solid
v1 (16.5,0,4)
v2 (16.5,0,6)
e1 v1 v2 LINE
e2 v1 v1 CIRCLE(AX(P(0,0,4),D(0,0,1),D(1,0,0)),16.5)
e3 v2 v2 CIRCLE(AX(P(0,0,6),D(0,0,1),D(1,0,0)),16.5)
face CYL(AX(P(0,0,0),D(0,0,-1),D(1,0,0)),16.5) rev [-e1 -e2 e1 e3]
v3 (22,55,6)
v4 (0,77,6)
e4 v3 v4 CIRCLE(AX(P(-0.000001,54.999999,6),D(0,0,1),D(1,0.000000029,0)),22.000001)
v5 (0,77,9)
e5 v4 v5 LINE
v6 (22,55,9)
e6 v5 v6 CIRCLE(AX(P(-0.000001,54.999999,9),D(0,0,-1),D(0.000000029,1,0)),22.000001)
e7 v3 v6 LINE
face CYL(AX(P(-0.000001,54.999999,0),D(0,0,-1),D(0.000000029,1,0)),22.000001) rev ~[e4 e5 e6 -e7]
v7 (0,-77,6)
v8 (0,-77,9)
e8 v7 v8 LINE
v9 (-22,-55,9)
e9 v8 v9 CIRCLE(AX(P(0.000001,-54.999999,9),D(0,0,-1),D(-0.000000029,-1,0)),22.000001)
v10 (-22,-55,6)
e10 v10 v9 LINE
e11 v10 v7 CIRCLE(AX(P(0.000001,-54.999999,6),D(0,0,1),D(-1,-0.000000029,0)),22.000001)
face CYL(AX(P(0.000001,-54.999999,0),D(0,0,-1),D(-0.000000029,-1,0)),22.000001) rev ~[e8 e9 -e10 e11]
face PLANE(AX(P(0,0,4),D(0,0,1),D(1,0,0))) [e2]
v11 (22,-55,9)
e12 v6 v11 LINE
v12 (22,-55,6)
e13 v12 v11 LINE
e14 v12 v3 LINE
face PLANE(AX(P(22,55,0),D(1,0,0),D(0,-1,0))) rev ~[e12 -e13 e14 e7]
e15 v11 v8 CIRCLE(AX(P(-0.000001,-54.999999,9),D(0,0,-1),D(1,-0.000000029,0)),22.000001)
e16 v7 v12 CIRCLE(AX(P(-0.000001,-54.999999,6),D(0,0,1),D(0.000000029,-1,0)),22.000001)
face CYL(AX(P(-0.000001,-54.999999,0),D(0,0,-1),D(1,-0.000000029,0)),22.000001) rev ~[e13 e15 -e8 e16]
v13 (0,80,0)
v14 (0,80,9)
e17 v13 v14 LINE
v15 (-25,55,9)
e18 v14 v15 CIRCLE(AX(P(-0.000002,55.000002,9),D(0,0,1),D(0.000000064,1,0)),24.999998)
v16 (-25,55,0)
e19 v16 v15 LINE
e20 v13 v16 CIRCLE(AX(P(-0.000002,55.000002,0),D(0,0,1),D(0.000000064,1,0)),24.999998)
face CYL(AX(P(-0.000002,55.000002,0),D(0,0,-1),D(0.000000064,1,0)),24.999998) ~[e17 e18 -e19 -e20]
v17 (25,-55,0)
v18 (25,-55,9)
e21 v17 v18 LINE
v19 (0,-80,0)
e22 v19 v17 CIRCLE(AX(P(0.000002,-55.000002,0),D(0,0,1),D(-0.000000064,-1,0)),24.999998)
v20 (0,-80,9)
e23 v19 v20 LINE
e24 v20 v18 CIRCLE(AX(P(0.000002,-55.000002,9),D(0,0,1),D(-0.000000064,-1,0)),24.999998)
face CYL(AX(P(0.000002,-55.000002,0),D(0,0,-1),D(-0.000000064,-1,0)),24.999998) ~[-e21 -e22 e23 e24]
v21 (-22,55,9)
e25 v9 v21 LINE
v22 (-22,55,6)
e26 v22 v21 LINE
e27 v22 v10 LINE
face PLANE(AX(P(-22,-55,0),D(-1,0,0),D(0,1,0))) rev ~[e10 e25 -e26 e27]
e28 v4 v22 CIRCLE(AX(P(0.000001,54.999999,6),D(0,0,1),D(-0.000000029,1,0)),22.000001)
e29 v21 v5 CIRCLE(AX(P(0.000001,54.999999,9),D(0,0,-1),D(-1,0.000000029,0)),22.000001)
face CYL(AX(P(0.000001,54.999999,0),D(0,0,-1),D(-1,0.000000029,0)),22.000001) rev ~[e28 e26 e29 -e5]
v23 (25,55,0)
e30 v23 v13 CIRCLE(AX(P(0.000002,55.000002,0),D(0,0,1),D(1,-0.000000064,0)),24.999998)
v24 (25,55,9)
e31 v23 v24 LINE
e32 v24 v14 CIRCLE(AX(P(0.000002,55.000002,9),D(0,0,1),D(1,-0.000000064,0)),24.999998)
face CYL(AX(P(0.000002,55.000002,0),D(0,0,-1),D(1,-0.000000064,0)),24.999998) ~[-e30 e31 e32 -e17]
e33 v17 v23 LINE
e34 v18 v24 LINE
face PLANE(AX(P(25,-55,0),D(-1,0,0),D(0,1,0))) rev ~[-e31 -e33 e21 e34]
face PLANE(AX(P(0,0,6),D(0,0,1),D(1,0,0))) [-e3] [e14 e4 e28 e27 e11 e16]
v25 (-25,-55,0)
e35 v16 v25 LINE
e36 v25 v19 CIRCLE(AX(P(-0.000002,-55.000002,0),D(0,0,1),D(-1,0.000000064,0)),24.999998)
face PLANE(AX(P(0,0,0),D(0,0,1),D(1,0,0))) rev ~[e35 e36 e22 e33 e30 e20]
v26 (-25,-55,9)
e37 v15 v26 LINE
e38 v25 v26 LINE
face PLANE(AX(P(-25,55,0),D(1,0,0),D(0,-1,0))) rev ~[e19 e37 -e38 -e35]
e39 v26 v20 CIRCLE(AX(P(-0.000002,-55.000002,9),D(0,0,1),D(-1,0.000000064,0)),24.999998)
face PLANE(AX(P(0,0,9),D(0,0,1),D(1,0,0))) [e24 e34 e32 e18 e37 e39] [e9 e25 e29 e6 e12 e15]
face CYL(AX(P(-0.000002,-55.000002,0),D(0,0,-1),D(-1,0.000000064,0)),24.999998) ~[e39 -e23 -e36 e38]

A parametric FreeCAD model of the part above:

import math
import FreeCAD as App
import Part
import Sketcher

doc = App.newDocument("Part")
body = doc.addObject("PartDesign::Body", "Body")

# Sketch on XY plane
sketch1 = doc.addObject("Sketcher::SketchObject", "Sketch")
body.addObject(sketch1)
sketch1.AttachmentSupport = (doc.XY_Plane, [""])
sketch1.MapMode = "FlatFace"
sketch1.addGeometry(Part.ArcOfCircle(Part.Circle(App.Vector(0, -55, 0), App.Vector(0, 0, 1), 22), math.radians(-90), math.radians(0)), False)
sketch1.addGeometry(Part.LineSegment(App.Vector(22, -55, 0), App.Vector(22, 55, 0)), False)
sketch1.addGeometry(Part.ArcOfCircle(Part.Circle(App.Vector(0, 55, 0), App.Vector(0, 0, 1), 22), math.radians(0), math.radians(90)), False)
sketch1.addGeometry(Part.ArcOfCircle(Part.Circle(App.Vector(0, 55, 0), App.Vector(0, 0, 1), 22), math.radians(90), math.radians(180)), False)
sketch1.addGeometry(Part.LineSegment(App.Vector(-22, 55, 0), App.Vector(-22, -55, 0)), False)
sketch1.addGeometry(Part.ArcOfCircle(Part.Circle(App.Vector(0, -55, 0), App.Vector(0, 0, 1), 22), math.radians(-180), math.radians(-90)), False)
sketch1.addGeometry(Part.Circle(App.Vector(0, 0, 0), App.Vector(0, 0, 1), 16), False)
sketch1.addConstraint(Sketcher.Constraint("Tangent", 0, 2, 1, 1))
sketch1.addConstraint(Sketcher.Constraint("Tangent", 1, 2, 2, 1))
sketch1.addConstraint(Sketcher.Constraint("Tangent", 2, 2, 3, 1))
sketch1.addConstraint(Sketcher.Constraint("Tangent", 3, 2, 4, 1))
sketch1.addConstraint(Sketcher.Constraint("Tangent", 4, 2, 5, 1))
sketch1.addConstraint(Sketcher.Constraint("Tangent", 5, 2, 0, 1))
sketch1.addConstraint(Sketcher.Constraint("Vertical", 1))
sketch1.addConstraint(Sketcher.Constraint("Vertical", 4))
sketch1.addConstraint(Sketcher.Constraint("Coincident", 6, 3, -1, 1))
sketch1.addConstraint(Sketcher.Constraint("Equal", 0, 2))
sketch1.addConstraint(Sketcher.Constraint("Equal", 2, 3))
sketch1.addConstraint(Sketcher.Constraint("Symmetric", 0, 3, 2, 3, -1, 1))
sketch1.addConstraint(Sketcher.Constraint("PointOnObject", 2, 2, -2))
sketch1.addConstraint(Sketcher.Constraint("PointOnObject", 5, 2, -2))
sketch1.addConstraint(Sketcher.Constraint("Diameter", 6, 33.0))
sketch1.addConstraint(Sketcher.Constraint("Radius", 0, 22.000001))
sketch1.addConstraint(Sketcher.Constraint("DistanceY", 1, 1, 1, 2, 110.0))
pad1 = doc.addObject("PartDesign::Pad", "Pad")
body.addObject(pad1)
pad1.Profile = sketch1
pad1.Length = 6

# Sketch on XY plane
sketch2 = doc.addObject("Sketcher::SketchObject", "Sketch001")
body.addObject(sketch2)
sketch2.AttachmentSupport = (doc.XY_Plane, [""])
sketch2.MapMode = "FlatFace"
sketch2.addGeometry(Part.Circle(App.Vector(0, -45, 0), App.Vector(0, 0, 1), 15), False)
sketch2.addGeometry(Part.Circle(App.Vector(0, 0, 0), App.Vector(0, 0, 1), 16), False)
sketch2.addGeometry(Part.Circle(App.Vector(0, 45, 0), App.Vector(0, 0, 1), 16), False)
sketch2.addConstraint(Sketcher.Constraint("Coincident", 1, 3, -1, 1))
sketch2.addConstraint(Sketcher.Constraint("Equal", 1, 2))
sketch2.addConstraint(Sketcher.Constraint("Symmetric", 0, 3, 2, 3, -1, 1))
sketch2.addConstraint(Sketcher.Constraint("PointOnObject", 0, 3, -2))
sketch2.addConstraint(Sketcher.Constraint("Diameter", 0, 30.0))
sketch2.addConstraint(Sketcher.Constraint("Diameter", 1, 33.0))
sketch2.addConstraint(Sketcher.Constraint("DistanceY", 0, 3, -1, 1, 45.0))
pad2 = doc.addObject("PartDesign::Pad", "Pad001")
body.addObject(pad2)
pad2.Profile = sketch2
pad2.Length = 4

# Sketch on XY plane
sketch3 = doc.addObject("Sketcher::SketchObject", "Sketch002")
body.addObject(sketch3)
sketch3.AttachmentSupport = (doc.XY_Plane, [""])
sketch3.MapMode = "FlatFace"
sketch3.addGeometry(Part.ArcOfCircle(Part.Circle(App.Vector(0, -55, 0), App.Vector(0, 0, 1), 25), math.radians(-90), math.radians(0)), False)
sketch3.addGeometry(Part.LineSegment(App.Vector(25, -55, 0), App.Vector(25, 55, 0)), False)
sketch3.addGeometry(Part.ArcOfCircle(Part.Circle(App.Vector(0, 55, 0), App.Vector(0, 0, 1), 25), math.radians(0), math.radians(90)), False)
sketch3.addGeometry(Part.ArcOfCircle(Part.Circle(App.Vector(0, 55, 0), App.Vector(0, 0, 1), 25), math.radians(90), math.radians(180)), False)
sketch3.addGeometry(Part.LineSegment(App.Vector(-25, 55, 0), App.Vector(-25, -55, 0)), False)
sketch3.addGeometry(Part.ArcOfCircle(Part.Circle(App.Vector(0, -55, 0), App.Vector(0, 0, 1), 25), math.radians(180), math.radians(270)), False)
sketch3.addGeometry(Part.ArcOfCircle(Part.Circle(App.Vector(0, 55, 0), App.Vector(0, 0, 1), 22), math.radians(0), math.radians(90)), False)
sketch3.addGeometry(Part.LineSegment(App.Vector(22, 55, 0), App.Vector(22, -55, 0)), False)
sketch3.addGeometry(Part.ArcOfCircle(Part.Circle(App.Vector(0, -55, 0), App.Vector(0, 0, 1), 22), math.radians(-90), math.radians(0)), False)
sketch3.addGeometry(Part.ArcOfCircle(Part.Circle(App.Vector(0, -55, 0), App.Vector(0, 0, 1), 22), math.radians(-180), math.radians(-90)), False)
sketch3.addGeometry(Part.LineSegment(App.Vector(-22, -55, 0), App.Vector(-22, 55, 0)), False)
sketch3.addGeometry(Part.ArcOfCircle(Part.Circle(App.Vector(0, 55, 0), App.Vector(0, 0, 1), 22), math.radians(90), math.radians(180)), False)
sketch3.addConstraint(Sketcher.Constraint("Tangent", 0, 2, 1, 1))
sketch3.addConstraint(Sketcher.Constraint("Tangent", 1, 2, 2, 1))
sketch3.addConstraint(Sketcher.Constraint("Tangent", 2, 2, 3, 1))
sketch3.addConstraint(Sketcher.Constraint("Tangent", 3, 2, 4, 1))
sketch3.addConstraint(Sketcher.Constraint("Tangent", 4, 2, 5, 1))
sketch3.addConstraint(Sketcher.Constraint("Tangent", 5, 2, 0, 1))
sketch3.addConstraint(Sketcher.Constraint("Tangent", 6, 1, 7, 1))
sketch3.addConstraint(Sketcher.Constraint("Tangent", 7, 2, 8, 2))
sketch3.addConstraint(Sketcher.Constraint("Tangent", 8, 1, 9, 2))
sketch3.addConstraint(Sketcher.Constraint("Tangent", 9, 1, 10, 1))
sketch3.addConstraint(Sketcher.Constraint("Tangent", 10, 2, 11, 2))
sketch3.addConstraint(Sketcher.Constraint("Tangent", 11, 1, 6, 2))
sketch3.addConstraint(Sketcher.Constraint("Vertical", 1))
sketch3.addConstraint(Sketcher.Constraint("Vertical", 4))
sketch3.addConstraint(Sketcher.Constraint("Vertical", 7))
sketch3.addConstraint(Sketcher.Constraint("Vertical", 10))
sketch3.addConstraint(Sketcher.Constraint("Coincident", 6, 3, 2, 3))
sketch3.addConstraint(Sketcher.Constraint("Coincident", 8, 3, 0, 3))
sketch3.addConstraint(Sketcher.Constraint("Equal", 0, 2))
sketch3.addConstraint(Sketcher.Constraint("Equal", 2, 3))
sketch3.addConstraint(Sketcher.Constraint("Equal", 8, 9))
sketch3.addConstraint(Sketcher.Constraint("Symmetric", 0, 3, 2, 3, -1, 1))
sketch3.addConstraint(Sketcher.Constraint("PointOnObject", 2, 2, -2))
sketch3.addConstraint(Sketcher.Constraint("PointOnObject", 5, 2, -2))
sketch3.addConstraint(Sketcher.Constraint("PointOnObject", 8, 1, -2))
sketch3.addConstraint(Sketcher.Constraint("PointOnObject", 11, 1, -2))
sketch3.addConstraint(Sketcher.Constraint("Radius", 0, 24.999998))
sketch3.addConstraint(Sketcher.Constraint("Radius", 6, 22.000001))
sketch3.addConstraint(Sketcher.Constraint("DistanceY", 1, 1, 1, 2, 110.0))
pad3 = doc.addObject("PartDesign::Pad", "Pad002")
body.addObject(pad3)
pad3.Profile = sketch3
pad3.Length = 9

doc.recompute()
